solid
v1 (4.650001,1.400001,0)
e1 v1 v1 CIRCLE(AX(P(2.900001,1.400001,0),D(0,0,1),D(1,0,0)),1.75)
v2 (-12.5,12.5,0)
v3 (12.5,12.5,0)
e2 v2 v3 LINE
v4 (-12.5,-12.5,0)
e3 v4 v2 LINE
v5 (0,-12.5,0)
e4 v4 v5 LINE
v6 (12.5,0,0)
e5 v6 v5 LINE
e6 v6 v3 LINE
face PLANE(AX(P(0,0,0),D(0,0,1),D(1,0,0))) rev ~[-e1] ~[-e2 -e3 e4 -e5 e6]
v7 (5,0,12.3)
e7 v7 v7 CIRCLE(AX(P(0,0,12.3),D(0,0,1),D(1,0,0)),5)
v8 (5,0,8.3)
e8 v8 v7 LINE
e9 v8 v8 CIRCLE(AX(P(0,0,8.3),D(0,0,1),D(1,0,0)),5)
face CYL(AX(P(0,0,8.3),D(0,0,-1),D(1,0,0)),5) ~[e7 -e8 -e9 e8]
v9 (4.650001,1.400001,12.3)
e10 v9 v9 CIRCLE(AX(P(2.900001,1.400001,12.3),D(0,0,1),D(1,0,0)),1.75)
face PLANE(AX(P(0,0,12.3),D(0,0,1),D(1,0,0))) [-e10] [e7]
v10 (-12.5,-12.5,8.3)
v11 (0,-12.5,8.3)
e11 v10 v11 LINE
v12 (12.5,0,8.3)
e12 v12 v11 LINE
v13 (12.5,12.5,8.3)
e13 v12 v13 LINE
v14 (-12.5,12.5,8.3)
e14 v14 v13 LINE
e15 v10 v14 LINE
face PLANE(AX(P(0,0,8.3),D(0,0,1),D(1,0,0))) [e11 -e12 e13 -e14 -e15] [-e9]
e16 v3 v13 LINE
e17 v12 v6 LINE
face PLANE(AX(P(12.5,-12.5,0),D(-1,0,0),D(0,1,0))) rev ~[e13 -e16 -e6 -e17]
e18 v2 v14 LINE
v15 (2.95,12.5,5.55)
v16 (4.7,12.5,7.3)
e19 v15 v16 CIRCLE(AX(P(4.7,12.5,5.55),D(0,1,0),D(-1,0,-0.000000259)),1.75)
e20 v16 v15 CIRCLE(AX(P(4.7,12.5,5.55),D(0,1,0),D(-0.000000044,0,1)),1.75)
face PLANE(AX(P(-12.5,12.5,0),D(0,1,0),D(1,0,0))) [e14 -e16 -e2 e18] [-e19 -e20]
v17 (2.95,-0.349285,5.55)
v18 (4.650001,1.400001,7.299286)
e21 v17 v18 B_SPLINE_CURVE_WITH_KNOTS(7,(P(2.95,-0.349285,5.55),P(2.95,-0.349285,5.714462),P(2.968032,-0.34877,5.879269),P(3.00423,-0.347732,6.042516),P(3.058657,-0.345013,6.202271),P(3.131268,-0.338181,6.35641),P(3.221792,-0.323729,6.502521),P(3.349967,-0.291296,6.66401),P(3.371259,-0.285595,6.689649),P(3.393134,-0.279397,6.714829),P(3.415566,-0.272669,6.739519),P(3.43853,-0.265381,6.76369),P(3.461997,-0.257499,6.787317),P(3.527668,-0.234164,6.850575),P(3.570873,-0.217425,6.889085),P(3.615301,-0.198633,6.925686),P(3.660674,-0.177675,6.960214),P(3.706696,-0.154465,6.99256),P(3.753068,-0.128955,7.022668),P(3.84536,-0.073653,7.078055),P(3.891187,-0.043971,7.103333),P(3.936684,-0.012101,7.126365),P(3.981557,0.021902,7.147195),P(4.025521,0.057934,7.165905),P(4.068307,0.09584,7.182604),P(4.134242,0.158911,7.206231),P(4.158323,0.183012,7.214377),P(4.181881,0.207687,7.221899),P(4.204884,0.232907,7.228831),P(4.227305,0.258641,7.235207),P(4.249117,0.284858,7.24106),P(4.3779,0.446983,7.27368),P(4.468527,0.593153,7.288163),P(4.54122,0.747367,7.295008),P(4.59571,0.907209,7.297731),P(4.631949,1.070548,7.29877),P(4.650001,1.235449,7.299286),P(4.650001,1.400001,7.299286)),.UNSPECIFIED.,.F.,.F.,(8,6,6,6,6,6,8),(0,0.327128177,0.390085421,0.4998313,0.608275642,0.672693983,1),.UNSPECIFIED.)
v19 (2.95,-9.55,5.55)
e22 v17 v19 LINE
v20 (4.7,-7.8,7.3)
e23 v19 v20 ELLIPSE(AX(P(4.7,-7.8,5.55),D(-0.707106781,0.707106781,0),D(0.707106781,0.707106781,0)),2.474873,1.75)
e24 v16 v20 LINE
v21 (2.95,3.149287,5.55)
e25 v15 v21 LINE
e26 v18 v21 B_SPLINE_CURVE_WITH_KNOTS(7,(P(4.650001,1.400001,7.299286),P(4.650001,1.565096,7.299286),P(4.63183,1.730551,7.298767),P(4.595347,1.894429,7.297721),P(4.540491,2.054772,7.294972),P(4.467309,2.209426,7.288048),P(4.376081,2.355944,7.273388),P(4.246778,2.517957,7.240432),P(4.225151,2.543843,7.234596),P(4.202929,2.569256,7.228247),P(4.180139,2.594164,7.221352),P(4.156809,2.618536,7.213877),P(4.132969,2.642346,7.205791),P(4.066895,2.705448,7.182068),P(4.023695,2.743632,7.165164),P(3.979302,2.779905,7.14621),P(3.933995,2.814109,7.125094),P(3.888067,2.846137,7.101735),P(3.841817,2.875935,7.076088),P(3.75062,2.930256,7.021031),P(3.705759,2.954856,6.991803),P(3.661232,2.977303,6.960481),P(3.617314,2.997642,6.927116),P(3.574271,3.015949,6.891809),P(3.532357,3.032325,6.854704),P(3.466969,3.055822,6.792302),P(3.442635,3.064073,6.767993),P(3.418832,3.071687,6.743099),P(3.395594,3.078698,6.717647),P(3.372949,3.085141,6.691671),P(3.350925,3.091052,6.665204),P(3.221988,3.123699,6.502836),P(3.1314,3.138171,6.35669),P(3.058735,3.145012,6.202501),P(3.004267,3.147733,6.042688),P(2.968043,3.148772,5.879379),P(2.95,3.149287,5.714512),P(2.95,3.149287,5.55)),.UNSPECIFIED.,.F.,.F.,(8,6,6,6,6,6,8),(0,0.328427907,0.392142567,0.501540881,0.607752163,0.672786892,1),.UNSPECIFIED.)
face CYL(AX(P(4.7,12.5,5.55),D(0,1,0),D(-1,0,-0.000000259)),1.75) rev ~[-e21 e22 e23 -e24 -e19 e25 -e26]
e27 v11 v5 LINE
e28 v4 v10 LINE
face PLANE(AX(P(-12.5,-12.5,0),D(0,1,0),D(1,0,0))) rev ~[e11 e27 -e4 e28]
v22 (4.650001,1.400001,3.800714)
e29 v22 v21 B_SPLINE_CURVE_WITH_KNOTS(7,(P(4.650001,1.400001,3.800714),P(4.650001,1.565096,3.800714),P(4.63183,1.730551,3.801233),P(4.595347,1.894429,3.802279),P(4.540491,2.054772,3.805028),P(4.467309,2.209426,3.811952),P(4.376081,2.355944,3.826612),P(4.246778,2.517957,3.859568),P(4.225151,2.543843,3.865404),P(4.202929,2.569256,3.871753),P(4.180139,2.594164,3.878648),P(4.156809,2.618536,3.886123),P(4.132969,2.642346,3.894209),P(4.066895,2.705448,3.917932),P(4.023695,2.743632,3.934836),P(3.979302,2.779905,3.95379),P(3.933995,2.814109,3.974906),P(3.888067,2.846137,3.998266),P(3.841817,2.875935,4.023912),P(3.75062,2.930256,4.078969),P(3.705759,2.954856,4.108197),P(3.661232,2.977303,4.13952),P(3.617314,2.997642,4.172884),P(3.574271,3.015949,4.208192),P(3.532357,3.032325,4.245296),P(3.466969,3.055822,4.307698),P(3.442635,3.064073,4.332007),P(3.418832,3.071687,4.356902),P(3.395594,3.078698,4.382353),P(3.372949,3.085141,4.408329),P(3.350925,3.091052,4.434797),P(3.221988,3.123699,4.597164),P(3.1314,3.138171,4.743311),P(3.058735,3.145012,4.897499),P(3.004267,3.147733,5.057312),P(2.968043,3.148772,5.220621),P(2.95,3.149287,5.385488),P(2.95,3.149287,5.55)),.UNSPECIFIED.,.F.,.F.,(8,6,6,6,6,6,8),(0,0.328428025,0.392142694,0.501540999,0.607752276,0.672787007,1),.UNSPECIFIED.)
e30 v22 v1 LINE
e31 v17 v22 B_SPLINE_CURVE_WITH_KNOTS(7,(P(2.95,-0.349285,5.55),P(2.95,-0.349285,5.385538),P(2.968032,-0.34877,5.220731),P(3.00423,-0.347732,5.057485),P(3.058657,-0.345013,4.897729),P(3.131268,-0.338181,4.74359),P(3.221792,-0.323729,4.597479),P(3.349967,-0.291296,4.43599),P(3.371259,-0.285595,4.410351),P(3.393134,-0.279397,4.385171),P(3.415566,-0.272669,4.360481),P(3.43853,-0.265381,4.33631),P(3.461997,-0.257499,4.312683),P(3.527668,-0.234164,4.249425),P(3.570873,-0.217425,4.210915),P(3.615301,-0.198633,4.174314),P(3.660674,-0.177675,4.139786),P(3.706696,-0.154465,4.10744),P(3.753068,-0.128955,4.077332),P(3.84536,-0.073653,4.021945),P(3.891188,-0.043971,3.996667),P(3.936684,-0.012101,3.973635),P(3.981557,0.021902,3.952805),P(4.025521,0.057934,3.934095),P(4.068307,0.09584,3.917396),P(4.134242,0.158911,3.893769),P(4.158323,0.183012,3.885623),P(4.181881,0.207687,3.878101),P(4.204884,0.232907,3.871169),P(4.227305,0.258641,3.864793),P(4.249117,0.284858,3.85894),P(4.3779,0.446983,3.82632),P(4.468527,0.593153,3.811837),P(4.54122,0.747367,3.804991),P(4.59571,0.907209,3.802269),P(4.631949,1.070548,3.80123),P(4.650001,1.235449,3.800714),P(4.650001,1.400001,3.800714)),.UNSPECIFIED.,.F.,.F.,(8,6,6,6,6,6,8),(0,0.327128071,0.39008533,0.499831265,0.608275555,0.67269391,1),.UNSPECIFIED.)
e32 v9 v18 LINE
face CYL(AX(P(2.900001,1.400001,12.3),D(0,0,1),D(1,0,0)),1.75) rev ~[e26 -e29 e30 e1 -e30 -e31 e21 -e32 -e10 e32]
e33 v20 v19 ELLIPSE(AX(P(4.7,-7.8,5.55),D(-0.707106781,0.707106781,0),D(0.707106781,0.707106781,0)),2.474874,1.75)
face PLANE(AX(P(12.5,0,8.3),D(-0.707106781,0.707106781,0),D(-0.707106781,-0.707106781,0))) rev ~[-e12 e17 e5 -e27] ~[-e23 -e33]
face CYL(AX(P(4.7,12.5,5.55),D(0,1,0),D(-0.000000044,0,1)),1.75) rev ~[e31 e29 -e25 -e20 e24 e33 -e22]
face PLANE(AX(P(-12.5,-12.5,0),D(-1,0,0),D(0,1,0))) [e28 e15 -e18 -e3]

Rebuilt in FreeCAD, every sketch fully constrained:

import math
import FreeCAD as App
import Part
import Sketcher

V = App.Vector

doc = App.newDocument("Part")
params = doc.addObject("Spreadsheet::Sheet", "Params")
for row, (alias, value) in enumerate([
    ("sketch1_width", "25 mm"),
    ("pad1_length", "8.3 mm"),
    ("sketch2_diameter", "10 mm"),
    ("pad2_length", "4 mm"),
    ("sketch3_width", "12.5 mm"),
    ("pocket1_length", "25 mm"),
    ("sketch4_diameter", "3.5 mm"),
    ("pocket2_length", "25 mm"),
    ("sketch5_radius", "1.75 mm"),
    ("pocket3_length", "25 mm"),
], start=1):
    params.set(f"A{row}", alias)
    params.set(f"B{row}", "=" + value)
    params.setAlias(f"B{row}", alias)

body = doc.addObject("PartDesign::Body", "Body")

sketch1 = body.newObject("Sketcher::SketchObject", "Sketch")
sketch1.AttachmentSupport = (doc.getObject("XY_Plane"), [""])
sketch1.MapMode = "FlatFace"
sketch1.addGeometry([
    Part.LineSegment(V(-12, 12, 0), V(-12, -12, 0)),
    Part.LineSegment(V(-12, -12, 0), V(12, -12, 0)),
    Part.LineSegment(V(12, -12, 0), V(12, 12, 0)),
    Part.LineSegment(V(12, 12, 0), V(-12, 12, 0)),
], False)
sketch1.addConstraint([
    Sketcher.Constraint("Coincident", 0, 2, 1, 1),
    Sketcher.Constraint("Coincident", 1, 2, 2, 1),
    Sketcher.Constraint("Coincident", 2, 2, 3, 1),
    Sketcher.Constraint("Coincident", 3, 2, 0, 1),
    Sketcher.Constraint("Vertical", 0),
    Sketcher.Constraint("Horizontal", 1),
    Sketcher.Constraint("Vertical", 2),
    Sketcher.Constraint("Horizontal", 3),
    Sketcher.Constraint("Symmetric", 0, 2, 2, 2, -1, 1),
    Sketcher.Constraint("Equal", 3, 0),
    Sketcher.Constraint("DistanceX", 1, 1, 1, 2, 25.0),
])
sketch1.setExpression("Constraints[10]", "Params.sketch1_width")
pad1 = body.newObject("PartDesign::Pad", "Pad")
pad1.Profile = sketch1
pad1.setExpression("Length", "Params.pad1_length")

sketch2 = body.newObject("Sketcher::SketchObject", "Sketch001")
sketch2.AttachmentSupport = (doc.getObject("XY_Plane"), [""])
sketch2.MapMode = "FlatFace"
sketch2.AttachmentOffset = App.Placement(V(0, 0, 8.3), App.Rotation())
sketch2.addGeometry(Part.Circle(V(0, 0, 0), V(0, 0, 1), 5), False)
sketch2.addConstraint([
    Sketcher.Constraint("Coincident", 0, 3, -1, 1),
    Sketcher.Constraint("Diameter", 0, 10.0),
])
sketch2.setExpression("Constraints[1]", "Params.sketch2_diameter")
pad2 = body.newObject("PartDesign::Pad", "Pad001")
pad2.Profile = sketch2
pad2.setExpression("Length", "Params.pad2_length")

sketch3 = body.newObject("Sketcher::SketchObject", "Sketch002")
sketch3.AttachmentSupport = (doc.getObject("XY_Plane"), [""])
sketch3.MapMode = "FlatFace"
sketch3.AttachmentOffset = App.Placement(V(0, 0, 8.3), App.Rotation())
sketch3.addGeometry([
    Part.LineSegment(V(12, -12, 0), V(12, 0, 0)),
    Part.LineSegment(V(12, 0, 0), V(0, -12, 0)),
    Part.LineSegment(V(0, -12, 0), V(12, -12, 0)),
], False)
sketch3.addConstraint([
    Sketcher.Constraint("Coincident", 0, 2, 1, 1),
    Sketcher.Constraint("Coincident", 1, 2, 2, 1),
    Sketcher.Constraint("Coincident", 2, 2, 0, 1),
    Sketcher.Constraint("Vertical", 0),
    Sketcher.Constraint("Horizontal", 2),
    Sketcher.Constraint("PointOnObject", 0, 2, -1),
    Sketcher.Constraint("PointOnObject", 1, 2, -2),
    Sketcher.Constraint("Equal", 2, 0),
    Sketcher.Constraint("DistanceX", 2, 1, 2, 2, 12.5),
])
sketch3.setExpression("Constraints[8]", "Params.sketch3_width")
pocket1 = body.newObject("PartDesign::Pocket", "Pocket")
pocket1.Profile = sketch3
pocket1.setExpression("Length", "Params.pocket1_length")

sketch4 = body.newObject("Sketcher::SketchObject", "Sketch003")
sketch4.AttachmentSupport = (doc.getObject("XY_Plane"), [""])
sketch4.MapMode = "FlatFace"
sketch4.AttachmentOffset = App.Placement(V(0, 0, 12.3), App.Rotation())
sketch4.addGeometry(Part.Circle(V(2.9, 1.4, 0), V(0, 0, 1), 1.8), False)
sketch4.addConstraint([
    Sketcher.Constraint("Diameter", 0, 3.5),
    Sketcher.Constraint("DistanceX", -1, 1, 0, 3, 2.900001),
    Sketcher.Constraint("DistanceY", -1, 1, 0, 3, 1.400001),
])
sketch4.setExpression("Constraints[0]", "Params.sketch4_diameter")
pocket2 = body.newObject("PartDesign::Pocket", "Pocket001")
pocket2.Profile = sketch4
pocket2.setExpression("Length", "Params.pocket2_length")

sketch5 = body.newObject("Sketcher::SketchObject", "Sketch004")
sketch5.AttachmentSupport = (doc.getObject("XZ_Plane"), [""])
sketch5.MapMode = "FlatFace"
sketch5.AttachmentOffset = App.Placement(V(0, 0, -12.5), App.Rotation())
sketch5.addGeometry([
    Part.ArcOfCircle(Part.Circle(V(4.7, 5.5, 0), V(0, 0, 1), 1.8), math.radians(180), math.radians(450)),
    Part.ArcOfCircle(Part.Circle(V(4.7, 5.6, 0), V(0, 0, 1), 1.7), math.radians(90), math.radians(180)),
], False)
sketch5.addConstraint([
    Sketcher.Constraint("Tangent", 0, 1, 1, 2),
    Sketcher.Constraint("Coincident", 1, 1, 0, 2),
    Sketcher.Constraint("Horizontal", 1, 3, 0, 1),
    Sketcher.Constraint("Vertical", 0, 3, 1, 1),
    Sketcher.Constraint("Radius", 0, 1.75),
    Sketcher.Constraint("DistanceX", -1, 1, 0, 3, 4.7),
    Sketcher.Constraint("DistanceY", -1, 1, 1, 1, 7.3),
])
sketch5.setExpression("Constraints[4]", "Params.sketch5_radius")
pocket3 = body.newObject("PartDesign::Pocket", "Pocket002")
pocket3.Profile = sketch5
pocket3.setExpression("Length", "Params.pocket3_length")
pocket3.Reversed = True

doc.recompute()
